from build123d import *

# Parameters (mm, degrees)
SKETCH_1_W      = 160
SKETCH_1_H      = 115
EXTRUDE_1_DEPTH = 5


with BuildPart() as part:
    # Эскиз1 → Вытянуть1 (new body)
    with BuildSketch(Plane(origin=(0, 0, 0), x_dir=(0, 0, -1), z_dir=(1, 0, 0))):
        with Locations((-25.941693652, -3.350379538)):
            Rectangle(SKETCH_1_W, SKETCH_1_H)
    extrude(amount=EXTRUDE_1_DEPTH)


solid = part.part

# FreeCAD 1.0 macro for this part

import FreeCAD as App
import Part
import Sketcher
from FreeCAD import Vector


def add_polygon(sketch, points):
    """Adds a closed chain of lines whose ends are joined by coincident constraints."""
    first, n = sketch.GeometryCount, len(points)
    for a, b in zip(points, points[1:] + points[:1]):
        sketch.addGeometry(Part.LineSegment(App.Vector(*a, 0), App.Vector(*b, 0)), False)
    for i in range(n):
        sketch.addConstraint(Sketcher.Constraint("Coincident", first + i, 2, first + (i + 1) % n, 1))

doc = App.newDocument("Part")
body = doc.addObject("PartDesign::Body", "Body")

# Sketch on YZ plane
sketch1 = body.newObject("Sketcher::SketchObject", "Sketch")
sketch1.AttachmentSupport = (doc.getObject("YZ_Plane"), [""])
sketch1.MapMode = "FlatFace"
add_polygon(sketch1, [(54, 106), (-61, 106), (-61, -54), (54, -54)])  # lines 0-3
sketch1.addConstraint(Sketcher.Constraint("Horizontal", 0))
sketch1.addConstraint(Sketcher.Constraint("Vertical", 1))
sketch1.addConstraint(Sketcher.Constraint("Horizontal", 2))
sketch1.addConstraint(Sketcher.Constraint("Vertical", 3))
sketch1.addConstraint(Sketcher.Constraint("DistanceX", 0, 2, 0, 1, 115.0))
sketch1.addConstraint(Sketcher.Constraint("DistanceY", 1, 2, 1, 1, 160.0))
sketch1.addConstraint(Sketcher.Constraint("DistanceX", 0, 2, -1, 1, 60.85038))
sketch1.addConstraint(Sketcher.Constraint("DistanceY", -1, 1, 0, 2, 105.941694))
pad1 = body.newObject("PartDesign::Pad", "Pad")
pad1.Profile = sketch1
pad1.Length = 5

doc.recompute()
